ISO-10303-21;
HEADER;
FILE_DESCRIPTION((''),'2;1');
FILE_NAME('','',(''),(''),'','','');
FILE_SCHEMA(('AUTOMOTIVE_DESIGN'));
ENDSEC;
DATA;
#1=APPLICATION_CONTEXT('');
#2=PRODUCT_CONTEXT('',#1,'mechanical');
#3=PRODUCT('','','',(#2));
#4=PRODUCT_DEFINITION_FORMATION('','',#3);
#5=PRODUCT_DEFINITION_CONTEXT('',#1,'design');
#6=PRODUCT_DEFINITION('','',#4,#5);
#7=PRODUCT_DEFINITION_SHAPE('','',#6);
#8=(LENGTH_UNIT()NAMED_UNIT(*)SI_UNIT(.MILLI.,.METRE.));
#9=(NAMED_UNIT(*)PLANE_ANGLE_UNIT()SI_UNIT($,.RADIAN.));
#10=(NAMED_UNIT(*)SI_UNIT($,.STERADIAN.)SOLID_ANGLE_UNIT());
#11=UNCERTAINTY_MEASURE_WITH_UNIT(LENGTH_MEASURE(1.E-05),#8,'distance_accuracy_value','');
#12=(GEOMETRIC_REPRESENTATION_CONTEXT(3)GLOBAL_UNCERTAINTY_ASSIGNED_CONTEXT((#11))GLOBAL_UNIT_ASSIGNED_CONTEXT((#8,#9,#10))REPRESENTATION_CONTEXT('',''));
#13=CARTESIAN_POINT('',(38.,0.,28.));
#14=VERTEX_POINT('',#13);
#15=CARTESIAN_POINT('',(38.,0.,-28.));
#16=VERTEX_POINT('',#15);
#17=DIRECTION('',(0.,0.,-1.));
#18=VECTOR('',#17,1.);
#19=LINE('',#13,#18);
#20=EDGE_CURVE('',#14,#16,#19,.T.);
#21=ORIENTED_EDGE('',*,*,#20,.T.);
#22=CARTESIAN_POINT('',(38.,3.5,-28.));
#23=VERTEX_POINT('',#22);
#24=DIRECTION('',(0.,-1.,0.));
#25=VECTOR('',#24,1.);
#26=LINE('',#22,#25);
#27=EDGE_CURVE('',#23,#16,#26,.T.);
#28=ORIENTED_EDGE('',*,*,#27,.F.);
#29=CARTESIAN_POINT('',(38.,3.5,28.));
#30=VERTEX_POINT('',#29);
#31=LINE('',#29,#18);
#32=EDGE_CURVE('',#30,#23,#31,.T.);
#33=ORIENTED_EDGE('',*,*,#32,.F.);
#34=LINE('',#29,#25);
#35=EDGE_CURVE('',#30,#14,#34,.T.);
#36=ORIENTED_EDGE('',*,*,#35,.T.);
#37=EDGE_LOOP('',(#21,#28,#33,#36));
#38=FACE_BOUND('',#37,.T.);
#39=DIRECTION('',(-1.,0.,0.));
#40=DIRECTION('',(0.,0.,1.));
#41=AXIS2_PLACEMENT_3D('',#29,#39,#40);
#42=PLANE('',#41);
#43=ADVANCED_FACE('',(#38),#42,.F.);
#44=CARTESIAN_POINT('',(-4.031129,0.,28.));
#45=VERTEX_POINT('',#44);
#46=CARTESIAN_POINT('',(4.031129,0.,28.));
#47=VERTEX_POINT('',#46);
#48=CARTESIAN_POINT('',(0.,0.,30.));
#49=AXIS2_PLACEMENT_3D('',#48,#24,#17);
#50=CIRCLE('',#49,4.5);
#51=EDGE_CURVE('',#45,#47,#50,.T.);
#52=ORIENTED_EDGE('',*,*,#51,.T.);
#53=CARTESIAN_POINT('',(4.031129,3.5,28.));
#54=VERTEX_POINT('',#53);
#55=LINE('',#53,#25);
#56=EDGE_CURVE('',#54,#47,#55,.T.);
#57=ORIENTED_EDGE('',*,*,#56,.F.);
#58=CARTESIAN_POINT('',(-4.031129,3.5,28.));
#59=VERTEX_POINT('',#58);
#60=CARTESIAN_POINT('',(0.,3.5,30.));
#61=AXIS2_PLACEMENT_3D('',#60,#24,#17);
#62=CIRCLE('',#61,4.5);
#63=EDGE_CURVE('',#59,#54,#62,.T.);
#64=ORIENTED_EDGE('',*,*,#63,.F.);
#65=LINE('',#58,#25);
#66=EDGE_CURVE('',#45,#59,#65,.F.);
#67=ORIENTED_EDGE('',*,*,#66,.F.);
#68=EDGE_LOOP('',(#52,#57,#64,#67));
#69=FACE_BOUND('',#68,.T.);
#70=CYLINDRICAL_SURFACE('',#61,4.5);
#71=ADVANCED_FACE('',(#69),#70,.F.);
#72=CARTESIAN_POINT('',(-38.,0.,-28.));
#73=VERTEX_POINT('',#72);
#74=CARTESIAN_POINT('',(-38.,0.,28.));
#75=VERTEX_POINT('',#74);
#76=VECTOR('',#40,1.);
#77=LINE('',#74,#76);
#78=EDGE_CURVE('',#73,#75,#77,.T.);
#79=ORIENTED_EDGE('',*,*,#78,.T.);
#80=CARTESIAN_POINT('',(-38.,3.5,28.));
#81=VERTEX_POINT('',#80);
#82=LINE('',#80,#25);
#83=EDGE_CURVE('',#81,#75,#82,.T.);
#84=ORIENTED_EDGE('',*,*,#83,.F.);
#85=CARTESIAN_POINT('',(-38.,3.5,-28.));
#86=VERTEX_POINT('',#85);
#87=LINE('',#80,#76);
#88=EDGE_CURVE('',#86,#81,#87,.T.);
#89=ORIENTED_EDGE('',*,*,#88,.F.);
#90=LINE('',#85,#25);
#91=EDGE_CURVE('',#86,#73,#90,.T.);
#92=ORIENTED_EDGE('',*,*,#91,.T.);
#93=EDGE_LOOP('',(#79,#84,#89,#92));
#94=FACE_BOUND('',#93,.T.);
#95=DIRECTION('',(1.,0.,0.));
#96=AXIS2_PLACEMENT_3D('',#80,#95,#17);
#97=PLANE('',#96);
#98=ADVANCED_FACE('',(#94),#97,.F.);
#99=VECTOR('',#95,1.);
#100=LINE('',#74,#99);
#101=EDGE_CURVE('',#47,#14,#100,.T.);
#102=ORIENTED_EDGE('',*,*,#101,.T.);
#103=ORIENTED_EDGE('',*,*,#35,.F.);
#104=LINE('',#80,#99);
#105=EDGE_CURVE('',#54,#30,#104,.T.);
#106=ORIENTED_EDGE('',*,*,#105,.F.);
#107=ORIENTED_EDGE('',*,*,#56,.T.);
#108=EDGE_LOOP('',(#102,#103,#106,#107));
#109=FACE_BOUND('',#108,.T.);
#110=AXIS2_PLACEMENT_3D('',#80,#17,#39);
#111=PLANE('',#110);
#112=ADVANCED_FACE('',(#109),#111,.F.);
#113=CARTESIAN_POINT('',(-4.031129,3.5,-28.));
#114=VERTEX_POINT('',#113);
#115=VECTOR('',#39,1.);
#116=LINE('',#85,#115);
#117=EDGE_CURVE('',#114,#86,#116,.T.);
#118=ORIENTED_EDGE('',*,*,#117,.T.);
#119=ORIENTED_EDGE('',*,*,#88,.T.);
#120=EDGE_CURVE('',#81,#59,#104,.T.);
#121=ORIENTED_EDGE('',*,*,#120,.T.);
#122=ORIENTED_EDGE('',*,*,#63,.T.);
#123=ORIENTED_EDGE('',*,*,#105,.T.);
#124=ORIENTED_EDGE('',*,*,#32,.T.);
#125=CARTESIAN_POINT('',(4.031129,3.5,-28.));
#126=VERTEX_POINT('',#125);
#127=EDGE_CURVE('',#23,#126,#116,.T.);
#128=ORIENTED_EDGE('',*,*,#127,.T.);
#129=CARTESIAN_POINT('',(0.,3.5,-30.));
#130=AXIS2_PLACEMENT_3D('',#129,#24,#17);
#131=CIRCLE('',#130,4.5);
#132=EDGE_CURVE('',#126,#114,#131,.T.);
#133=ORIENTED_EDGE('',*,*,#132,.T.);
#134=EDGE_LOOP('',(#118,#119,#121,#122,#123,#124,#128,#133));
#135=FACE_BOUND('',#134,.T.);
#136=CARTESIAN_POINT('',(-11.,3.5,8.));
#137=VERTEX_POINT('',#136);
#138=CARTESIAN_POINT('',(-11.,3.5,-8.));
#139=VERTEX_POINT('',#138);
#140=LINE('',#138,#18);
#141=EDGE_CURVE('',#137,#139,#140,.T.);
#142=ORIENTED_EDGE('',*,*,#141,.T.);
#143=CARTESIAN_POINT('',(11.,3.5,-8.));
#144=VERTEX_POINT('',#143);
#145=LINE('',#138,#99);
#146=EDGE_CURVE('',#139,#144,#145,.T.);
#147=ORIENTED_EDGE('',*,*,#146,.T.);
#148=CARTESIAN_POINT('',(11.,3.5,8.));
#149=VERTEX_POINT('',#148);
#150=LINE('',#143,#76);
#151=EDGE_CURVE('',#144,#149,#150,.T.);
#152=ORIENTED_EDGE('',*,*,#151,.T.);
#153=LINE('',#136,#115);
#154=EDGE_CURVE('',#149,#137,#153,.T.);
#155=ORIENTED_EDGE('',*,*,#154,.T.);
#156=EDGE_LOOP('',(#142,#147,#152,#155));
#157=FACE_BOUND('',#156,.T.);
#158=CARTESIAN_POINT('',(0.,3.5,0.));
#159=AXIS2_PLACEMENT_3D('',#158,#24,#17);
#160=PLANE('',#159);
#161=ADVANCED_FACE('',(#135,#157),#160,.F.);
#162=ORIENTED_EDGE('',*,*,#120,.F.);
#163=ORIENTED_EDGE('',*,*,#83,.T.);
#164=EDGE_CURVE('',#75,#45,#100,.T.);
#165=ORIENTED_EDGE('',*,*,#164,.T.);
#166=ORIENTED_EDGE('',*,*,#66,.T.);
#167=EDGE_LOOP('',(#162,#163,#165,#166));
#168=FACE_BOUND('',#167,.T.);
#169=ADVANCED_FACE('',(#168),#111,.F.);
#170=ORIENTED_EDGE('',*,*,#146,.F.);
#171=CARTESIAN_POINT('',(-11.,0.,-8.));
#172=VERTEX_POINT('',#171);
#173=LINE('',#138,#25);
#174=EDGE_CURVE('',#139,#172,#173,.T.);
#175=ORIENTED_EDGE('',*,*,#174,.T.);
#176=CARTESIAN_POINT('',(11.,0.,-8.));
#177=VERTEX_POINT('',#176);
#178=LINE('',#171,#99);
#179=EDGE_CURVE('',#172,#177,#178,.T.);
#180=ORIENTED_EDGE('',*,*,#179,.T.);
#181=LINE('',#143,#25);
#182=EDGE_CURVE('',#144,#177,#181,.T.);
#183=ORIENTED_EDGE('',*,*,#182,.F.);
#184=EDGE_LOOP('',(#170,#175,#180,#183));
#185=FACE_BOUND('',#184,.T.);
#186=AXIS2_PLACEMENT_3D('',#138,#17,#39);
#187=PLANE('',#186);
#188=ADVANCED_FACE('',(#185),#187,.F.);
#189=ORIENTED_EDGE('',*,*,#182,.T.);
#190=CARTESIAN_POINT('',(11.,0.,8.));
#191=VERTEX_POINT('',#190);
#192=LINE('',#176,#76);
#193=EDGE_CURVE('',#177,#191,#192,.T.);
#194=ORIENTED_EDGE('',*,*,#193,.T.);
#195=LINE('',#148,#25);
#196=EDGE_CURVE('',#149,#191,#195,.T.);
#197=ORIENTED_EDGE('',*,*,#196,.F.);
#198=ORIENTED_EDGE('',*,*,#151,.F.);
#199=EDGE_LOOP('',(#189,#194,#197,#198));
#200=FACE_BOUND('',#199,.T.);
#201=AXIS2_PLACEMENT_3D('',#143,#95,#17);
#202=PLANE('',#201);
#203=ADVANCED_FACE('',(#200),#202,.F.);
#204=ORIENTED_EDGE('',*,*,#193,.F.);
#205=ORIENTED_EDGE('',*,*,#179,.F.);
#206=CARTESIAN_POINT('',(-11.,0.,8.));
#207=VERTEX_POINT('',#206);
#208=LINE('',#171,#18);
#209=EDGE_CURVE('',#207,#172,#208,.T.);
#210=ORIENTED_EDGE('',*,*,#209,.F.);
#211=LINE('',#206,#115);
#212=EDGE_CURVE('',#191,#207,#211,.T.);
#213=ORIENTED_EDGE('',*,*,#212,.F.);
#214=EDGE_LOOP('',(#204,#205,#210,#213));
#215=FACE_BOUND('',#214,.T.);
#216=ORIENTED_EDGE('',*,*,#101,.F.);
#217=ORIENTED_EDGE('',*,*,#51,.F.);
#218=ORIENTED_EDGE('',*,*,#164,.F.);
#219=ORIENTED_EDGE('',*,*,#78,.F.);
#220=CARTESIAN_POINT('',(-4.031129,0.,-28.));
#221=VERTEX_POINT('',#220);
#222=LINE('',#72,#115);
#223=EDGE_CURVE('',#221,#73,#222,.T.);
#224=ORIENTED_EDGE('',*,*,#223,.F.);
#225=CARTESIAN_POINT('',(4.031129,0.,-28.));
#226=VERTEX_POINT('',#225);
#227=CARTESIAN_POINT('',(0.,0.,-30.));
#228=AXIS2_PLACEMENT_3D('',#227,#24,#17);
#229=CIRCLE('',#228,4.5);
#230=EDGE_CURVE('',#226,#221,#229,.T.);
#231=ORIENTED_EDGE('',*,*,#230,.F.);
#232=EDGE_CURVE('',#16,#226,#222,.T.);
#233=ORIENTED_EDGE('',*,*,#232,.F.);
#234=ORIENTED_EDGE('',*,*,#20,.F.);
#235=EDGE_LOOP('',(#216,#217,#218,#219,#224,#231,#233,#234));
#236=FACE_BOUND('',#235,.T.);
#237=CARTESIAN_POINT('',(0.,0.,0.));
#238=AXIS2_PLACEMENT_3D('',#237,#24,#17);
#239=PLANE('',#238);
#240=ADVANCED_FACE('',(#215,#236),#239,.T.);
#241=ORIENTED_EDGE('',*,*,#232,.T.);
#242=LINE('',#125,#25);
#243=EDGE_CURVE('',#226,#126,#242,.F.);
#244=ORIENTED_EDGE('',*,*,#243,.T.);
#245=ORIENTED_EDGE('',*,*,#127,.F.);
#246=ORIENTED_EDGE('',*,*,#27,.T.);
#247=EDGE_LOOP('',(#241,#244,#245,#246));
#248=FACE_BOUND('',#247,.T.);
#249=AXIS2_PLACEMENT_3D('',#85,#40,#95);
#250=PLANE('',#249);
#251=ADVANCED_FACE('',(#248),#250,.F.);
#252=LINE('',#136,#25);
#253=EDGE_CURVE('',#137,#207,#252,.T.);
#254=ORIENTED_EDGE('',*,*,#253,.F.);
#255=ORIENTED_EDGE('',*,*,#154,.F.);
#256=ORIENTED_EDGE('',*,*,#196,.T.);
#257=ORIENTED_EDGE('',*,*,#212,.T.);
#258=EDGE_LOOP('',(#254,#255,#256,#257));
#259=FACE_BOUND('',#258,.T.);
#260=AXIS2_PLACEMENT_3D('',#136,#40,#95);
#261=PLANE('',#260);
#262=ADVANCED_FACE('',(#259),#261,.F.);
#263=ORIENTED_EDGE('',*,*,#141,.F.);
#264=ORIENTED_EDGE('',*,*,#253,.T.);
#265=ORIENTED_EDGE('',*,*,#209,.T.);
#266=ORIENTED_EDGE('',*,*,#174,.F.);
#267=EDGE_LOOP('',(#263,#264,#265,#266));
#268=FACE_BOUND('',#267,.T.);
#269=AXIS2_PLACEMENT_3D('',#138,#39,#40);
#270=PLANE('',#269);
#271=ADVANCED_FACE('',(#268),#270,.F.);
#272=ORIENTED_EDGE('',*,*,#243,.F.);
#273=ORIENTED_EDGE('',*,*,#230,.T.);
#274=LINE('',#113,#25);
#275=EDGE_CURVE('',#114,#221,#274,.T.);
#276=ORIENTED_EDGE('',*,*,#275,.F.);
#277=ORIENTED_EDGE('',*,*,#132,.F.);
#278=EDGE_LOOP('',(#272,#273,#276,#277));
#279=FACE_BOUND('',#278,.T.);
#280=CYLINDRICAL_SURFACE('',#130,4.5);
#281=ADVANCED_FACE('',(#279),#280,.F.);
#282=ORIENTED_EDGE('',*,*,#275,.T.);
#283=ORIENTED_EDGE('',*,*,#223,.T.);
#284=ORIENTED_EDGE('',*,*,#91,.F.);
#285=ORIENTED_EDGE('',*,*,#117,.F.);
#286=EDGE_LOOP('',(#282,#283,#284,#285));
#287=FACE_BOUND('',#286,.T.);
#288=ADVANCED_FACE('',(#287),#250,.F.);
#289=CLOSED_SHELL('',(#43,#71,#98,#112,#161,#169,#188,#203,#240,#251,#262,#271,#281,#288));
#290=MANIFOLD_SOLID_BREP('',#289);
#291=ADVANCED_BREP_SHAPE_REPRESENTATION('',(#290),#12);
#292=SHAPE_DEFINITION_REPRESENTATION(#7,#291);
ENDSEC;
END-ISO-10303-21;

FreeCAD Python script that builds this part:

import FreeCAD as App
import Part
import Sketcher

V = App.Vector
Q = App.Units.Quantity


def add_polygon(sketch, points):
    """Adds a closed chain of lines whose ends are joined by coincident constraints."""
    first, n = sketch.GeometryCount, len(points)
    for a, b in zip(points, points[1:] + points[:1]):
        sketch.addGeometry(Part.LineSegment(App.Vector(*a, 0), App.Vector(*b, 0)), False)
    for i in range(n):
        sketch.addConstraint(Sketcher.Constraint("Coincident", first + i, 2, first + (i + 1) % n, 1))

doc = App.newDocument("Part")
params = doc.addObject("Spreadsheet::Sheet", "Params")
for row, (alias, value) in enumerate([
    ("sketch1_width", "76 mm"),
    ("sketch1_height", "56 mm"),
    ("pad1_length", "3.5 mm"),
    ("sketch2_diameter", "9 mm"),
    ("sketch2_width", "22 mm"),
    ("sketch2_height", "16 mm"),
    ("pocket1_length", "3.5 mm"),
], start=1):
    params.set(f"A{row}", alias)
    params.set(f"B{row}", "=" + value)
    params.setAlias(f"B{row}", alias)

body = doc.addObject("PartDesign::Body", "Body")

# Sketch on XZ plane
sketch1 = doc.addObject("Sketcher::SketchObject", "Sketch")
body.addObject(sketch1)
sketch1.AttachmentSupport = (doc.XZ_Plane, [""])
sketch1.MapMode = "FlatFace"
add_polygon(sketch1, [(-38, -28), (-38, 28), (38, 28), (38, -28)])  # lines 0-3
sketch1.addConstraint([
    Sketcher.Constraint("Vertical", 0),
    Sketcher.Constraint("Horizontal", 1),
    Sketcher.Constraint("Vertical", 2),
    Sketcher.Constraint("Horizontal", 3),
    Sketcher.Constraint("Symmetric", 0, 2, 2, 2, -1, 1),
    Sketcher.Constraint("DistanceX", 1, 1, 1, 2, Q("76 mm")),
    Sketcher.Constraint("DistanceY", 0, 1, 0, 2, Q("56 mm")),
])
sketch1.setExpression("Constraints[9]", "Params.sketch1_width")
sketch1.setExpression("Constraints[10]", "Params.sketch1_height")
pad1 = doc.addObject("PartDesign::Pad", "Pad")
body.addObject(pad1)
pad1.Profile = sketch1
pad1.setExpression("Length", "Params.pad1_length")
pad1.Reversed = True

# Sketch on XZ plane
sketch2 = doc.addObject("Sketcher::SketchObject", "Sketch001")
body.addObject(sketch2)
sketch2.AttachmentSupport = (doc.XZ_Plane, [""])
sketch2.MapMode = "FlatFace"
sketch2.addGeometry(Part.Circle(V(0, -30, 0), V(0, 0, 1), 4.5), False)  # 0
sketch2.addGeometry(Part.Circle(V(0, 30, 0), V(0, 0, 1), 4.5), False)  # 1
add_polygon(sketch2, [(-11, 8), (-11, -8), (11, -8), (11, 8)])  # lines 2-5
sketch2.addConstraint([
    Sketcher.Constraint("Vertical", 2),
    Sketcher.Constraint("Horizontal", 3),
    Sketcher.Constraint("Vertical", 4),
    Sketcher.Constraint("Horizontal", 5),
    Sketcher.Constraint("Equal", 0, 1),
    Sketcher.Constraint("Symmetric", 0, 3, 1, 3, -1, 1),
    Sketcher.Constraint("Symmetric", 2, 2, 4, 2, -1, 1),
    Sketcher.Constraint("PointOnObject", 0, 3, -2),
    Sketcher.Constraint("Diameter", 0, Q("9 mm")),
    Sketcher.Constraint("DistanceX", 3, 1, 3, 2, Q("22 mm")),
    Sketcher.Constraint("DistanceY", 2, 2, 2, 1, Q("16 mm")),
    Sketcher.Constraint("DistanceY", 0, 3, -1, 1, Q("30 mm")),
])
sketch2.setExpression("Constraints[12]", "Params.sketch2_diameter")
sketch2.setExpression("Constraints[13]", "Params.sketch2_width")
sketch2.setExpression("Constraints[14]", "Params.sketch2_height")
pocket1 = doc.addObject("PartDesign::Pocket", "Pocket")
body.addObject(pocket1)
pocket1.Profile = sketch2
pocket1.setExpression("Length", "Params.pocket1_length")

doc.recompute()
